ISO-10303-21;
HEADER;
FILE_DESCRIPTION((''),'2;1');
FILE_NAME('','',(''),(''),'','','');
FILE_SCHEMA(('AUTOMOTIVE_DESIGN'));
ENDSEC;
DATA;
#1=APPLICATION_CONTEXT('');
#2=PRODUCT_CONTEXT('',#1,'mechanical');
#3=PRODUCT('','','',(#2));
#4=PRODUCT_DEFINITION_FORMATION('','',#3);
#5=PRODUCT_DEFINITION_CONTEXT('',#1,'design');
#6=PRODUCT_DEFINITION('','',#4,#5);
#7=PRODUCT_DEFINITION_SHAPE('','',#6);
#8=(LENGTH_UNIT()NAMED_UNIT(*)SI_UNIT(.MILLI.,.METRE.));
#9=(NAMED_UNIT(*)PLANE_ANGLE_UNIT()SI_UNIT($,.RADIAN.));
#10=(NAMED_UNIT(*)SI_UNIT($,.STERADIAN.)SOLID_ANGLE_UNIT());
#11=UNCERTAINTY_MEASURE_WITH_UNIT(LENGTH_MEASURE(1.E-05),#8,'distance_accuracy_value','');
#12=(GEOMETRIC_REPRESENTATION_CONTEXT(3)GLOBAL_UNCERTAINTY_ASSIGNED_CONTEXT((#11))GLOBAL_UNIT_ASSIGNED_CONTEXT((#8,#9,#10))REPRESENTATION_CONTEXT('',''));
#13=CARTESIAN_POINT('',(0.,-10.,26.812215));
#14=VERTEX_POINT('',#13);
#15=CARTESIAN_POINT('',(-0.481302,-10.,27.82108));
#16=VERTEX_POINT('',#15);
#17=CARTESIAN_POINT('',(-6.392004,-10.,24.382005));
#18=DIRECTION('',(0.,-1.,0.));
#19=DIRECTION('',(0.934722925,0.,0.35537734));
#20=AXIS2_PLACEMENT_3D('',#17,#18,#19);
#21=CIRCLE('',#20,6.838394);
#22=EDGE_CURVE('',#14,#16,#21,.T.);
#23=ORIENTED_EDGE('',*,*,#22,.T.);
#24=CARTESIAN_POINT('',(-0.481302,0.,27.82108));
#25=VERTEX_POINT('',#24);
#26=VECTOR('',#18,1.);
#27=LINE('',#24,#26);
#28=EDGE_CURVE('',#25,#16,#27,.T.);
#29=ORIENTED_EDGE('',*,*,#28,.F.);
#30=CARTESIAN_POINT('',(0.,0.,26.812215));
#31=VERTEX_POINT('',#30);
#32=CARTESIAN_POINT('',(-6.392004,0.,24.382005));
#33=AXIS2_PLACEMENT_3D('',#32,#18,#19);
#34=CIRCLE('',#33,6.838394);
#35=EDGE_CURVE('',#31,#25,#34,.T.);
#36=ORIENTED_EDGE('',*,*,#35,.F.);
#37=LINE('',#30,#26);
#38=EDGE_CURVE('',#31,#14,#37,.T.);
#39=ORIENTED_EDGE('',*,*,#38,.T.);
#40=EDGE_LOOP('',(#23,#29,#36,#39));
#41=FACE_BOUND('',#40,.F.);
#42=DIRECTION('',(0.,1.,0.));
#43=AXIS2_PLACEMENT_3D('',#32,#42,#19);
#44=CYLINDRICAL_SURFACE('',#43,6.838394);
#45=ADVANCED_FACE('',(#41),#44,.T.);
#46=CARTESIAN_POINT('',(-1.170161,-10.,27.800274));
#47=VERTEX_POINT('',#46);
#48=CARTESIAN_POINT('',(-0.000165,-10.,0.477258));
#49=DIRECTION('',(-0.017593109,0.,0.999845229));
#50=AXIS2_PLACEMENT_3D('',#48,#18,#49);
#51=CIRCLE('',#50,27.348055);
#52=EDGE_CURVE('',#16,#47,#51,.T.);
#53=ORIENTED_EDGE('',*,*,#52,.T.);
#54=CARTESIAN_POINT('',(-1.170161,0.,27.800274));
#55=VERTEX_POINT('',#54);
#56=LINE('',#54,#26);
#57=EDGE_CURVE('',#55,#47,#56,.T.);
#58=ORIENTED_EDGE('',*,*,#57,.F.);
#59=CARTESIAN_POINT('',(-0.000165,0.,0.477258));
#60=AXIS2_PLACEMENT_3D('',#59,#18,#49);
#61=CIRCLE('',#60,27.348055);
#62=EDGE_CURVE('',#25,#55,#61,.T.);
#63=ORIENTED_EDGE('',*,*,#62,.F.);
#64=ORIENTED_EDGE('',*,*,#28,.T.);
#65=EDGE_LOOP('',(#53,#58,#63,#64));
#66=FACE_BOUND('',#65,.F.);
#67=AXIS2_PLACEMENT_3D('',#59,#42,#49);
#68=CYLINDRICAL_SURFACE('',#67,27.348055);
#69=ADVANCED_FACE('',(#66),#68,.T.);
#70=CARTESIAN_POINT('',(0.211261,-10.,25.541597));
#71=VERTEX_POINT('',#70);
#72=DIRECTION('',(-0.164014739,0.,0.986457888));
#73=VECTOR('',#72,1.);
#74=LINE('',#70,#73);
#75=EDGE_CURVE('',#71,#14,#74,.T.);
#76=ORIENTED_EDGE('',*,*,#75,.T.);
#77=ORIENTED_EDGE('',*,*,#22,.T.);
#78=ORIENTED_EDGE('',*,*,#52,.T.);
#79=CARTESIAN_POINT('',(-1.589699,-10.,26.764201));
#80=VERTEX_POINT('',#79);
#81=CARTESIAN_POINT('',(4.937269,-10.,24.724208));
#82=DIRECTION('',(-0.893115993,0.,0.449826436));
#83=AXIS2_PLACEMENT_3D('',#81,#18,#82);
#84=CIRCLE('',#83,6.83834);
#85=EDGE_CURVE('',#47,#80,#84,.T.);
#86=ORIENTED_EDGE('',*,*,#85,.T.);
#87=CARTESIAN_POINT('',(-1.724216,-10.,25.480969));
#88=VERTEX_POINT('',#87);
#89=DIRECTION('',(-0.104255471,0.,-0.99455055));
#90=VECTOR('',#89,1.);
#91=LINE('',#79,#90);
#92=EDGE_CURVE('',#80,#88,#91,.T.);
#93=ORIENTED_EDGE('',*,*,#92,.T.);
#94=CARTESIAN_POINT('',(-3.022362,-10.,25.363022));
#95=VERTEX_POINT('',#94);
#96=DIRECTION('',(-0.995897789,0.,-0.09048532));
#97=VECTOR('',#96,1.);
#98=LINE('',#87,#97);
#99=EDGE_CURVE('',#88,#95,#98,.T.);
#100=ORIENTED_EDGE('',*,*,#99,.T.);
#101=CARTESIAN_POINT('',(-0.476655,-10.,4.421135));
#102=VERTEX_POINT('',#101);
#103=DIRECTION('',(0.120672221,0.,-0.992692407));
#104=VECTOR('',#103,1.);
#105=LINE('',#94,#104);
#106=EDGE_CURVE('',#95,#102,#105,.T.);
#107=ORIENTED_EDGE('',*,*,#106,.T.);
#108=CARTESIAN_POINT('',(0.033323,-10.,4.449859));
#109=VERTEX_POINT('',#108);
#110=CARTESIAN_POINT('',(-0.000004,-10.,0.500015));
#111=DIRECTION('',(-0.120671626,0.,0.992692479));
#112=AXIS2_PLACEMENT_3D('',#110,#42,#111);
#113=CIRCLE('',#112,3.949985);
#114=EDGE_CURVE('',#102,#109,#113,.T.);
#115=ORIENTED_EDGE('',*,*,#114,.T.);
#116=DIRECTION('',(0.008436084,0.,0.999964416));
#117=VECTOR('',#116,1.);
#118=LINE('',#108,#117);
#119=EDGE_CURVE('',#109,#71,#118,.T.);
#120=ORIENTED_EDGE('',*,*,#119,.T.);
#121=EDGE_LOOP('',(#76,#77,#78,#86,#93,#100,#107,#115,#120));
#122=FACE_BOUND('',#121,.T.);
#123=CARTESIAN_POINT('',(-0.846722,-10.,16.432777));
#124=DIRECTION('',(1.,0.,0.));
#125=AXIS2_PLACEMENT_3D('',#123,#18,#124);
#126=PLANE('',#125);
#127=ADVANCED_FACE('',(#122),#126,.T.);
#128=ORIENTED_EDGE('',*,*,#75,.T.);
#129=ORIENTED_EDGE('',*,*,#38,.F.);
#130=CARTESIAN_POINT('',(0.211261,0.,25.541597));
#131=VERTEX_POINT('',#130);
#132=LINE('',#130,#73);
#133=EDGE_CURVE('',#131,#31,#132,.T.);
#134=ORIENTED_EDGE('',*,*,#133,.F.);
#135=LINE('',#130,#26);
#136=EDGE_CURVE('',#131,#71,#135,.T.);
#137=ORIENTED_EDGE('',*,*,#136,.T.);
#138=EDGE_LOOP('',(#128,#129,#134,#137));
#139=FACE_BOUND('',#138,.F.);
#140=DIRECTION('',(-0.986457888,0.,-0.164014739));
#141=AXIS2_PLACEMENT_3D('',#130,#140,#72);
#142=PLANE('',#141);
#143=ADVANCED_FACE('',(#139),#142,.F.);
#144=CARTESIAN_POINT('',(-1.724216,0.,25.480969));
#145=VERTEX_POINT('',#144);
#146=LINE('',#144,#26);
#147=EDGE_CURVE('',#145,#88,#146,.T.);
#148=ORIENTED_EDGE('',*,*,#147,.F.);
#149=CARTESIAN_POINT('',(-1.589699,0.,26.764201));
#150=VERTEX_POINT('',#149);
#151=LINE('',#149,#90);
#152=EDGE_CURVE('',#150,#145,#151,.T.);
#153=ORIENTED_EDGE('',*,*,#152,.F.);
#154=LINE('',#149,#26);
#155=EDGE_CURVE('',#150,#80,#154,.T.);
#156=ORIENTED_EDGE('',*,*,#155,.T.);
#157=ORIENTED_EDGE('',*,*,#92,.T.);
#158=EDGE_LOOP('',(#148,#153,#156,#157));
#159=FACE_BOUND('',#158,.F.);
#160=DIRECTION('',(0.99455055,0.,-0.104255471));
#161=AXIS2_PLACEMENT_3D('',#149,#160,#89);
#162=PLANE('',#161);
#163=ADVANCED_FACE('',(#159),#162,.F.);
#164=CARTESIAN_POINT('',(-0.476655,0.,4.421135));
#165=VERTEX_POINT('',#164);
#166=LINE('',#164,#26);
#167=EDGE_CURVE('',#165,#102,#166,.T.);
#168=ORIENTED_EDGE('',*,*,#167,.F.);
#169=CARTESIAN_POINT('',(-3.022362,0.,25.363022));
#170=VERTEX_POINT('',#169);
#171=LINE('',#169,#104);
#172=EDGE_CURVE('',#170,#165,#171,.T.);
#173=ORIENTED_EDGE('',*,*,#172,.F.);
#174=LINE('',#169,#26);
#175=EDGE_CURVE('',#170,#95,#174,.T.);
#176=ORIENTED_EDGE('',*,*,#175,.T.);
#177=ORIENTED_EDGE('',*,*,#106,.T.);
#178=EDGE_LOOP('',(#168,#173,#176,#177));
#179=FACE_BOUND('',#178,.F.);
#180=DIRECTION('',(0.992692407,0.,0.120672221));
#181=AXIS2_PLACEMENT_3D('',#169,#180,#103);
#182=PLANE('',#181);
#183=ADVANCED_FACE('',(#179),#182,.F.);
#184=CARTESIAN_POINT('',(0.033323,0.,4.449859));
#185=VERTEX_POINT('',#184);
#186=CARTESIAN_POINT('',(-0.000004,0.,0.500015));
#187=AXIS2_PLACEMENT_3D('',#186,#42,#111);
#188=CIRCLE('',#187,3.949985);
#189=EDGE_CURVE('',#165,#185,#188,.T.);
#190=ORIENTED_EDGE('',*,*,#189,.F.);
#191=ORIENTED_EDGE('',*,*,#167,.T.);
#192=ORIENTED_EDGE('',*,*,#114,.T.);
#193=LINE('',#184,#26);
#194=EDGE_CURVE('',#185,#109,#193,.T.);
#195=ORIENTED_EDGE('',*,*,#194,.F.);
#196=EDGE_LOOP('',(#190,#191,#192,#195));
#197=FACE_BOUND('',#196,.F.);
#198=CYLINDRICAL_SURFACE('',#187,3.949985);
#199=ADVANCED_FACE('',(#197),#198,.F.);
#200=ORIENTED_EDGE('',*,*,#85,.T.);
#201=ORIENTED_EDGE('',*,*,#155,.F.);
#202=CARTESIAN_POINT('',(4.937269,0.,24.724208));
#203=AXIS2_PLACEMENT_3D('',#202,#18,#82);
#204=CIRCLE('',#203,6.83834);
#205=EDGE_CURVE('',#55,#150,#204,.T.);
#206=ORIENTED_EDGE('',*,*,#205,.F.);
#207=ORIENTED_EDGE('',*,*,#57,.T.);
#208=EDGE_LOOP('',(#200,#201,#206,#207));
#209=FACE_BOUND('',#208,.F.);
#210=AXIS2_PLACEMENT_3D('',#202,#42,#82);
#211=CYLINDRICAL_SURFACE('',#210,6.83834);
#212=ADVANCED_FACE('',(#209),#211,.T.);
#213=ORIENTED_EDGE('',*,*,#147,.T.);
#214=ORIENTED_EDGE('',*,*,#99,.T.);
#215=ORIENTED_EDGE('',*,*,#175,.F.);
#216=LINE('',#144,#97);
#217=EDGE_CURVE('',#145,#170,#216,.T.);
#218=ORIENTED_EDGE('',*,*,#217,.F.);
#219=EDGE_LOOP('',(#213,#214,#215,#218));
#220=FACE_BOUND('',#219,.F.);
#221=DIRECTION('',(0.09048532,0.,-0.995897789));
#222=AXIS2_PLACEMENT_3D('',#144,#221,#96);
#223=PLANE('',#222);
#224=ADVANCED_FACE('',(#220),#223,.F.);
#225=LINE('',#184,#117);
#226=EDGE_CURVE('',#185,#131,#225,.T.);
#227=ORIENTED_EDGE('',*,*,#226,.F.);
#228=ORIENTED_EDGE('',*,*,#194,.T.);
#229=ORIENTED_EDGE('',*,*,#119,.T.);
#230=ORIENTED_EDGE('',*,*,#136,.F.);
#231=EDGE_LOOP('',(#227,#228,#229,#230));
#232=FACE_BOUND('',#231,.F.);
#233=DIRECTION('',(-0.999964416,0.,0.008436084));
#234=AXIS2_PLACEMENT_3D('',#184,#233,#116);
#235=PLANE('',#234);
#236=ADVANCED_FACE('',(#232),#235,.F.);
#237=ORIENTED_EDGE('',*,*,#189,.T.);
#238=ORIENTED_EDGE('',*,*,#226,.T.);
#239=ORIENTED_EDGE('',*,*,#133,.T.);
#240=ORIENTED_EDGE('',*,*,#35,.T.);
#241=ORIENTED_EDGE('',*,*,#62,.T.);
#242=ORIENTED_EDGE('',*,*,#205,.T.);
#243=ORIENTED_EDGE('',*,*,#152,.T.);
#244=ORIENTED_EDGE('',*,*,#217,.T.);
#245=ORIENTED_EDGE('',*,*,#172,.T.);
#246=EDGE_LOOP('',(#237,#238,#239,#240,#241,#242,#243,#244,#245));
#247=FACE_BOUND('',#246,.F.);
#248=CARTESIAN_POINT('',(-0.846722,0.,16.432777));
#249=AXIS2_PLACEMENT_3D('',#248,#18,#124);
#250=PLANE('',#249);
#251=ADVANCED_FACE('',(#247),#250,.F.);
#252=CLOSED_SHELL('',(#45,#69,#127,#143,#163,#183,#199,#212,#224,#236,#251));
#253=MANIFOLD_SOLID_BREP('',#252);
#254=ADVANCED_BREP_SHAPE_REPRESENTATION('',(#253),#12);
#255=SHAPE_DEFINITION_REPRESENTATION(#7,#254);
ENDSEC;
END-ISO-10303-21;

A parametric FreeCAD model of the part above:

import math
import FreeCAD as App
import Part
import Sketcher
from FreeCAD import Vector
Q = App.Units.Quantity

doc = App.newDocument("Part")
body = doc.addObject("PartDesign::Body", "Body")

# Sketch on XZ plane
sketch1 = body.newObject("Sketcher::SketchObject", "Sketch")
sketch1.AttachmentSupport = (doc.getObject("XZ_Plane"), [""])
sketch1.MapMode = "FlatFace"
sketch1.addGeometry(Part.LineSegment(Vector(0.2, 25, 0), Vector(0, 26.3, 0)), False)
sketch1.addGeometry(Part.ArcOfCircle(Part.Circle(Vector(-6.4, 23.9, 0), Vector(0, 0, 1), 6.8), math.radians(20.82), math.radians(30.19)), False)
sketch1.addGeometry(Part.ArcOfCircle(Part.Circle(Vector(0, 0, 0), Vector(0, 0, 1), 27.3), math.radians(91.01), math.radians(92.45)), False)
sketch1.addGeometry(Part.ArcOfCircle(Part.Circle(Vector(4.9, 24.2, 0), Vector(0, 0, 1), 6.8), math.radians(153.27), math.radians(162.64)), False)
sketch1.addGeometry(Part.LineSegment(Vector(-1.6, 26.3, 0), Vector(-1.7, 25, 0)), False)
sketch1.addGeometry(Part.LineSegment(Vector(-1.7, 25, 0), Vector(-3, 24.9, 0)), False)
sketch1.addGeometry(Part.LineSegment(Vector(-3, 24.9, 0), Vector(-0.5, 3.9, 0)), False)
sketch1.addGeometry(Part.ArcOfCircle(Part.Circle(Vector(0, 0, 0), Vector(0, 0, 1), 3.9), math.radians(89.52), math.radians(96.93)), False)
sketch1.addGeometry(Part.LineSegment(Vector(0, 3.9, 0), Vector(0.2, 25, 0)), False)
sketch1.addConstraint(Sketcher.Constraint("Coincident", 0, 2, 1, 1))
sketch1.addConstraint(Sketcher.Constraint("Coincident", 1, 2, 2, 1))
sketch1.addConstraint(Sketcher.Constraint("Coincident", 2, 2, 3, 1))
sketch1.addConstraint(Sketcher.Constraint("Coincident", 3, 2, 4, 1))
sketch1.addConstraint(Sketcher.Constraint("Coincident", 4, 2, 5, 1))
sketch1.addConstraint(Sketcher.Constraint("Coincident", 5, 2, 6, 1))
sketch1.addConstraint(Sketcher.Constraint("Coincident", 6, 2, 7, 2))
sketch1.addConstraint(Sketcher.Constraint("Coincident", 7, 1, 8, 1))
sketch1.addConstraint(Sketcher.Constraint("Coincident", 8, 2, 0, 1))
sketch1.addConstraint(Sketcher.Constraint("PointOnObject", 0, 2, -2))
sketch1.addConstraint(Sketcher.Constraint("Angle", 0, Q("99.440003 deg")))
sketch1.addConstraint(Sketcher.Constraint("Radius", 3, 6.83834))
sketch1.addConstraint(Sketcher.Constraint("Radius", 1, 6.838394))
sketch1.addConstraint(Sketcher.Constraint("Radius", 2, 27.348055))
sketch1.addConstraint(Sketcher.Constraint("Radius", 7, 3.949985))
sketch1.addConstraint(Sketcher.Constraint("DistanceX", 1, 3, 7, 3, 6.392))
sketch1.addConstraint(Sketcher.Constraint("DistanceX", 1, 2, -1, 1, 0.481302))
sketch1.addConstraint(Sketcher.Constraint("DistanceX", 3, 2, -1, 1, 1.589699))
sketch1.addConstraint(Sketcher.Constraint("DistanceY", -1, 1, 3, 2, 26.264201))
sketch1.addConstraint(Sketcher.Constraint("DistanceY", 7, 3, 0, 2, 26.3122))
sketch1.addConstraint(Sketcher.Constraint("DistanceX", 1, 2, 7, 3, 0.481298))
sketch1.addConstraint(Sketcher.Constraint("DistanceX", 5, 2, 2, 2, 1.852201))
sketch1.addConstraint(Sketcher.Constraint("DistanceY", 2, 3, 7, 1, 3.972601))
sketch1.addConstraint(Sketcher.Constraint("Distance", 0, 1.288061))
sketch1.addConstraint(Sketcher.Constraint("Distance", 6, 21.096048))
sketch1.addConstraint(Sketcher.Constraint("DistanceX", -1, 1, 3, 3, 4.937269))
sketch1.addConstraint(Sketcher.Constraint("DistanceY", -1, 1, 1, 2, 27.32108))
sketch1.addConstraint(Sketcher.Constraint("DistanceY", -1, 1, 4, 2, 24.980969))
sketch1.addConstraint(Sketcher.Constraint("DistanceY", -1, 1, 7, 1, 3.949859))
sketch1.addConstraint(Sketcher.Constraint("DistanceX", 1, 3, 4, 2, 4.667788))
sketch1.addConstraint(Sketcher.Constraint("DistanceX", 6, 2, 7, 3, 0.476651))
pad1 = body.newObject("PartDesign::Pad", "Pad")
pad1.Profile = sketch1
pad1.Length = 10
body2 = doc.addObject("PartDesign::Body", "Body001")
doc.recompute()

body.Placement = App.Placement(Vector(0, 0, 0.5), App.Rotation(Vector(0, 0, 1), 0))
boolean = body2.newObject("PartDesign::Boolean", "Boolean")
boolean.Type = "Fuse"
boolean.addObjects([body])

doc.recompute()
